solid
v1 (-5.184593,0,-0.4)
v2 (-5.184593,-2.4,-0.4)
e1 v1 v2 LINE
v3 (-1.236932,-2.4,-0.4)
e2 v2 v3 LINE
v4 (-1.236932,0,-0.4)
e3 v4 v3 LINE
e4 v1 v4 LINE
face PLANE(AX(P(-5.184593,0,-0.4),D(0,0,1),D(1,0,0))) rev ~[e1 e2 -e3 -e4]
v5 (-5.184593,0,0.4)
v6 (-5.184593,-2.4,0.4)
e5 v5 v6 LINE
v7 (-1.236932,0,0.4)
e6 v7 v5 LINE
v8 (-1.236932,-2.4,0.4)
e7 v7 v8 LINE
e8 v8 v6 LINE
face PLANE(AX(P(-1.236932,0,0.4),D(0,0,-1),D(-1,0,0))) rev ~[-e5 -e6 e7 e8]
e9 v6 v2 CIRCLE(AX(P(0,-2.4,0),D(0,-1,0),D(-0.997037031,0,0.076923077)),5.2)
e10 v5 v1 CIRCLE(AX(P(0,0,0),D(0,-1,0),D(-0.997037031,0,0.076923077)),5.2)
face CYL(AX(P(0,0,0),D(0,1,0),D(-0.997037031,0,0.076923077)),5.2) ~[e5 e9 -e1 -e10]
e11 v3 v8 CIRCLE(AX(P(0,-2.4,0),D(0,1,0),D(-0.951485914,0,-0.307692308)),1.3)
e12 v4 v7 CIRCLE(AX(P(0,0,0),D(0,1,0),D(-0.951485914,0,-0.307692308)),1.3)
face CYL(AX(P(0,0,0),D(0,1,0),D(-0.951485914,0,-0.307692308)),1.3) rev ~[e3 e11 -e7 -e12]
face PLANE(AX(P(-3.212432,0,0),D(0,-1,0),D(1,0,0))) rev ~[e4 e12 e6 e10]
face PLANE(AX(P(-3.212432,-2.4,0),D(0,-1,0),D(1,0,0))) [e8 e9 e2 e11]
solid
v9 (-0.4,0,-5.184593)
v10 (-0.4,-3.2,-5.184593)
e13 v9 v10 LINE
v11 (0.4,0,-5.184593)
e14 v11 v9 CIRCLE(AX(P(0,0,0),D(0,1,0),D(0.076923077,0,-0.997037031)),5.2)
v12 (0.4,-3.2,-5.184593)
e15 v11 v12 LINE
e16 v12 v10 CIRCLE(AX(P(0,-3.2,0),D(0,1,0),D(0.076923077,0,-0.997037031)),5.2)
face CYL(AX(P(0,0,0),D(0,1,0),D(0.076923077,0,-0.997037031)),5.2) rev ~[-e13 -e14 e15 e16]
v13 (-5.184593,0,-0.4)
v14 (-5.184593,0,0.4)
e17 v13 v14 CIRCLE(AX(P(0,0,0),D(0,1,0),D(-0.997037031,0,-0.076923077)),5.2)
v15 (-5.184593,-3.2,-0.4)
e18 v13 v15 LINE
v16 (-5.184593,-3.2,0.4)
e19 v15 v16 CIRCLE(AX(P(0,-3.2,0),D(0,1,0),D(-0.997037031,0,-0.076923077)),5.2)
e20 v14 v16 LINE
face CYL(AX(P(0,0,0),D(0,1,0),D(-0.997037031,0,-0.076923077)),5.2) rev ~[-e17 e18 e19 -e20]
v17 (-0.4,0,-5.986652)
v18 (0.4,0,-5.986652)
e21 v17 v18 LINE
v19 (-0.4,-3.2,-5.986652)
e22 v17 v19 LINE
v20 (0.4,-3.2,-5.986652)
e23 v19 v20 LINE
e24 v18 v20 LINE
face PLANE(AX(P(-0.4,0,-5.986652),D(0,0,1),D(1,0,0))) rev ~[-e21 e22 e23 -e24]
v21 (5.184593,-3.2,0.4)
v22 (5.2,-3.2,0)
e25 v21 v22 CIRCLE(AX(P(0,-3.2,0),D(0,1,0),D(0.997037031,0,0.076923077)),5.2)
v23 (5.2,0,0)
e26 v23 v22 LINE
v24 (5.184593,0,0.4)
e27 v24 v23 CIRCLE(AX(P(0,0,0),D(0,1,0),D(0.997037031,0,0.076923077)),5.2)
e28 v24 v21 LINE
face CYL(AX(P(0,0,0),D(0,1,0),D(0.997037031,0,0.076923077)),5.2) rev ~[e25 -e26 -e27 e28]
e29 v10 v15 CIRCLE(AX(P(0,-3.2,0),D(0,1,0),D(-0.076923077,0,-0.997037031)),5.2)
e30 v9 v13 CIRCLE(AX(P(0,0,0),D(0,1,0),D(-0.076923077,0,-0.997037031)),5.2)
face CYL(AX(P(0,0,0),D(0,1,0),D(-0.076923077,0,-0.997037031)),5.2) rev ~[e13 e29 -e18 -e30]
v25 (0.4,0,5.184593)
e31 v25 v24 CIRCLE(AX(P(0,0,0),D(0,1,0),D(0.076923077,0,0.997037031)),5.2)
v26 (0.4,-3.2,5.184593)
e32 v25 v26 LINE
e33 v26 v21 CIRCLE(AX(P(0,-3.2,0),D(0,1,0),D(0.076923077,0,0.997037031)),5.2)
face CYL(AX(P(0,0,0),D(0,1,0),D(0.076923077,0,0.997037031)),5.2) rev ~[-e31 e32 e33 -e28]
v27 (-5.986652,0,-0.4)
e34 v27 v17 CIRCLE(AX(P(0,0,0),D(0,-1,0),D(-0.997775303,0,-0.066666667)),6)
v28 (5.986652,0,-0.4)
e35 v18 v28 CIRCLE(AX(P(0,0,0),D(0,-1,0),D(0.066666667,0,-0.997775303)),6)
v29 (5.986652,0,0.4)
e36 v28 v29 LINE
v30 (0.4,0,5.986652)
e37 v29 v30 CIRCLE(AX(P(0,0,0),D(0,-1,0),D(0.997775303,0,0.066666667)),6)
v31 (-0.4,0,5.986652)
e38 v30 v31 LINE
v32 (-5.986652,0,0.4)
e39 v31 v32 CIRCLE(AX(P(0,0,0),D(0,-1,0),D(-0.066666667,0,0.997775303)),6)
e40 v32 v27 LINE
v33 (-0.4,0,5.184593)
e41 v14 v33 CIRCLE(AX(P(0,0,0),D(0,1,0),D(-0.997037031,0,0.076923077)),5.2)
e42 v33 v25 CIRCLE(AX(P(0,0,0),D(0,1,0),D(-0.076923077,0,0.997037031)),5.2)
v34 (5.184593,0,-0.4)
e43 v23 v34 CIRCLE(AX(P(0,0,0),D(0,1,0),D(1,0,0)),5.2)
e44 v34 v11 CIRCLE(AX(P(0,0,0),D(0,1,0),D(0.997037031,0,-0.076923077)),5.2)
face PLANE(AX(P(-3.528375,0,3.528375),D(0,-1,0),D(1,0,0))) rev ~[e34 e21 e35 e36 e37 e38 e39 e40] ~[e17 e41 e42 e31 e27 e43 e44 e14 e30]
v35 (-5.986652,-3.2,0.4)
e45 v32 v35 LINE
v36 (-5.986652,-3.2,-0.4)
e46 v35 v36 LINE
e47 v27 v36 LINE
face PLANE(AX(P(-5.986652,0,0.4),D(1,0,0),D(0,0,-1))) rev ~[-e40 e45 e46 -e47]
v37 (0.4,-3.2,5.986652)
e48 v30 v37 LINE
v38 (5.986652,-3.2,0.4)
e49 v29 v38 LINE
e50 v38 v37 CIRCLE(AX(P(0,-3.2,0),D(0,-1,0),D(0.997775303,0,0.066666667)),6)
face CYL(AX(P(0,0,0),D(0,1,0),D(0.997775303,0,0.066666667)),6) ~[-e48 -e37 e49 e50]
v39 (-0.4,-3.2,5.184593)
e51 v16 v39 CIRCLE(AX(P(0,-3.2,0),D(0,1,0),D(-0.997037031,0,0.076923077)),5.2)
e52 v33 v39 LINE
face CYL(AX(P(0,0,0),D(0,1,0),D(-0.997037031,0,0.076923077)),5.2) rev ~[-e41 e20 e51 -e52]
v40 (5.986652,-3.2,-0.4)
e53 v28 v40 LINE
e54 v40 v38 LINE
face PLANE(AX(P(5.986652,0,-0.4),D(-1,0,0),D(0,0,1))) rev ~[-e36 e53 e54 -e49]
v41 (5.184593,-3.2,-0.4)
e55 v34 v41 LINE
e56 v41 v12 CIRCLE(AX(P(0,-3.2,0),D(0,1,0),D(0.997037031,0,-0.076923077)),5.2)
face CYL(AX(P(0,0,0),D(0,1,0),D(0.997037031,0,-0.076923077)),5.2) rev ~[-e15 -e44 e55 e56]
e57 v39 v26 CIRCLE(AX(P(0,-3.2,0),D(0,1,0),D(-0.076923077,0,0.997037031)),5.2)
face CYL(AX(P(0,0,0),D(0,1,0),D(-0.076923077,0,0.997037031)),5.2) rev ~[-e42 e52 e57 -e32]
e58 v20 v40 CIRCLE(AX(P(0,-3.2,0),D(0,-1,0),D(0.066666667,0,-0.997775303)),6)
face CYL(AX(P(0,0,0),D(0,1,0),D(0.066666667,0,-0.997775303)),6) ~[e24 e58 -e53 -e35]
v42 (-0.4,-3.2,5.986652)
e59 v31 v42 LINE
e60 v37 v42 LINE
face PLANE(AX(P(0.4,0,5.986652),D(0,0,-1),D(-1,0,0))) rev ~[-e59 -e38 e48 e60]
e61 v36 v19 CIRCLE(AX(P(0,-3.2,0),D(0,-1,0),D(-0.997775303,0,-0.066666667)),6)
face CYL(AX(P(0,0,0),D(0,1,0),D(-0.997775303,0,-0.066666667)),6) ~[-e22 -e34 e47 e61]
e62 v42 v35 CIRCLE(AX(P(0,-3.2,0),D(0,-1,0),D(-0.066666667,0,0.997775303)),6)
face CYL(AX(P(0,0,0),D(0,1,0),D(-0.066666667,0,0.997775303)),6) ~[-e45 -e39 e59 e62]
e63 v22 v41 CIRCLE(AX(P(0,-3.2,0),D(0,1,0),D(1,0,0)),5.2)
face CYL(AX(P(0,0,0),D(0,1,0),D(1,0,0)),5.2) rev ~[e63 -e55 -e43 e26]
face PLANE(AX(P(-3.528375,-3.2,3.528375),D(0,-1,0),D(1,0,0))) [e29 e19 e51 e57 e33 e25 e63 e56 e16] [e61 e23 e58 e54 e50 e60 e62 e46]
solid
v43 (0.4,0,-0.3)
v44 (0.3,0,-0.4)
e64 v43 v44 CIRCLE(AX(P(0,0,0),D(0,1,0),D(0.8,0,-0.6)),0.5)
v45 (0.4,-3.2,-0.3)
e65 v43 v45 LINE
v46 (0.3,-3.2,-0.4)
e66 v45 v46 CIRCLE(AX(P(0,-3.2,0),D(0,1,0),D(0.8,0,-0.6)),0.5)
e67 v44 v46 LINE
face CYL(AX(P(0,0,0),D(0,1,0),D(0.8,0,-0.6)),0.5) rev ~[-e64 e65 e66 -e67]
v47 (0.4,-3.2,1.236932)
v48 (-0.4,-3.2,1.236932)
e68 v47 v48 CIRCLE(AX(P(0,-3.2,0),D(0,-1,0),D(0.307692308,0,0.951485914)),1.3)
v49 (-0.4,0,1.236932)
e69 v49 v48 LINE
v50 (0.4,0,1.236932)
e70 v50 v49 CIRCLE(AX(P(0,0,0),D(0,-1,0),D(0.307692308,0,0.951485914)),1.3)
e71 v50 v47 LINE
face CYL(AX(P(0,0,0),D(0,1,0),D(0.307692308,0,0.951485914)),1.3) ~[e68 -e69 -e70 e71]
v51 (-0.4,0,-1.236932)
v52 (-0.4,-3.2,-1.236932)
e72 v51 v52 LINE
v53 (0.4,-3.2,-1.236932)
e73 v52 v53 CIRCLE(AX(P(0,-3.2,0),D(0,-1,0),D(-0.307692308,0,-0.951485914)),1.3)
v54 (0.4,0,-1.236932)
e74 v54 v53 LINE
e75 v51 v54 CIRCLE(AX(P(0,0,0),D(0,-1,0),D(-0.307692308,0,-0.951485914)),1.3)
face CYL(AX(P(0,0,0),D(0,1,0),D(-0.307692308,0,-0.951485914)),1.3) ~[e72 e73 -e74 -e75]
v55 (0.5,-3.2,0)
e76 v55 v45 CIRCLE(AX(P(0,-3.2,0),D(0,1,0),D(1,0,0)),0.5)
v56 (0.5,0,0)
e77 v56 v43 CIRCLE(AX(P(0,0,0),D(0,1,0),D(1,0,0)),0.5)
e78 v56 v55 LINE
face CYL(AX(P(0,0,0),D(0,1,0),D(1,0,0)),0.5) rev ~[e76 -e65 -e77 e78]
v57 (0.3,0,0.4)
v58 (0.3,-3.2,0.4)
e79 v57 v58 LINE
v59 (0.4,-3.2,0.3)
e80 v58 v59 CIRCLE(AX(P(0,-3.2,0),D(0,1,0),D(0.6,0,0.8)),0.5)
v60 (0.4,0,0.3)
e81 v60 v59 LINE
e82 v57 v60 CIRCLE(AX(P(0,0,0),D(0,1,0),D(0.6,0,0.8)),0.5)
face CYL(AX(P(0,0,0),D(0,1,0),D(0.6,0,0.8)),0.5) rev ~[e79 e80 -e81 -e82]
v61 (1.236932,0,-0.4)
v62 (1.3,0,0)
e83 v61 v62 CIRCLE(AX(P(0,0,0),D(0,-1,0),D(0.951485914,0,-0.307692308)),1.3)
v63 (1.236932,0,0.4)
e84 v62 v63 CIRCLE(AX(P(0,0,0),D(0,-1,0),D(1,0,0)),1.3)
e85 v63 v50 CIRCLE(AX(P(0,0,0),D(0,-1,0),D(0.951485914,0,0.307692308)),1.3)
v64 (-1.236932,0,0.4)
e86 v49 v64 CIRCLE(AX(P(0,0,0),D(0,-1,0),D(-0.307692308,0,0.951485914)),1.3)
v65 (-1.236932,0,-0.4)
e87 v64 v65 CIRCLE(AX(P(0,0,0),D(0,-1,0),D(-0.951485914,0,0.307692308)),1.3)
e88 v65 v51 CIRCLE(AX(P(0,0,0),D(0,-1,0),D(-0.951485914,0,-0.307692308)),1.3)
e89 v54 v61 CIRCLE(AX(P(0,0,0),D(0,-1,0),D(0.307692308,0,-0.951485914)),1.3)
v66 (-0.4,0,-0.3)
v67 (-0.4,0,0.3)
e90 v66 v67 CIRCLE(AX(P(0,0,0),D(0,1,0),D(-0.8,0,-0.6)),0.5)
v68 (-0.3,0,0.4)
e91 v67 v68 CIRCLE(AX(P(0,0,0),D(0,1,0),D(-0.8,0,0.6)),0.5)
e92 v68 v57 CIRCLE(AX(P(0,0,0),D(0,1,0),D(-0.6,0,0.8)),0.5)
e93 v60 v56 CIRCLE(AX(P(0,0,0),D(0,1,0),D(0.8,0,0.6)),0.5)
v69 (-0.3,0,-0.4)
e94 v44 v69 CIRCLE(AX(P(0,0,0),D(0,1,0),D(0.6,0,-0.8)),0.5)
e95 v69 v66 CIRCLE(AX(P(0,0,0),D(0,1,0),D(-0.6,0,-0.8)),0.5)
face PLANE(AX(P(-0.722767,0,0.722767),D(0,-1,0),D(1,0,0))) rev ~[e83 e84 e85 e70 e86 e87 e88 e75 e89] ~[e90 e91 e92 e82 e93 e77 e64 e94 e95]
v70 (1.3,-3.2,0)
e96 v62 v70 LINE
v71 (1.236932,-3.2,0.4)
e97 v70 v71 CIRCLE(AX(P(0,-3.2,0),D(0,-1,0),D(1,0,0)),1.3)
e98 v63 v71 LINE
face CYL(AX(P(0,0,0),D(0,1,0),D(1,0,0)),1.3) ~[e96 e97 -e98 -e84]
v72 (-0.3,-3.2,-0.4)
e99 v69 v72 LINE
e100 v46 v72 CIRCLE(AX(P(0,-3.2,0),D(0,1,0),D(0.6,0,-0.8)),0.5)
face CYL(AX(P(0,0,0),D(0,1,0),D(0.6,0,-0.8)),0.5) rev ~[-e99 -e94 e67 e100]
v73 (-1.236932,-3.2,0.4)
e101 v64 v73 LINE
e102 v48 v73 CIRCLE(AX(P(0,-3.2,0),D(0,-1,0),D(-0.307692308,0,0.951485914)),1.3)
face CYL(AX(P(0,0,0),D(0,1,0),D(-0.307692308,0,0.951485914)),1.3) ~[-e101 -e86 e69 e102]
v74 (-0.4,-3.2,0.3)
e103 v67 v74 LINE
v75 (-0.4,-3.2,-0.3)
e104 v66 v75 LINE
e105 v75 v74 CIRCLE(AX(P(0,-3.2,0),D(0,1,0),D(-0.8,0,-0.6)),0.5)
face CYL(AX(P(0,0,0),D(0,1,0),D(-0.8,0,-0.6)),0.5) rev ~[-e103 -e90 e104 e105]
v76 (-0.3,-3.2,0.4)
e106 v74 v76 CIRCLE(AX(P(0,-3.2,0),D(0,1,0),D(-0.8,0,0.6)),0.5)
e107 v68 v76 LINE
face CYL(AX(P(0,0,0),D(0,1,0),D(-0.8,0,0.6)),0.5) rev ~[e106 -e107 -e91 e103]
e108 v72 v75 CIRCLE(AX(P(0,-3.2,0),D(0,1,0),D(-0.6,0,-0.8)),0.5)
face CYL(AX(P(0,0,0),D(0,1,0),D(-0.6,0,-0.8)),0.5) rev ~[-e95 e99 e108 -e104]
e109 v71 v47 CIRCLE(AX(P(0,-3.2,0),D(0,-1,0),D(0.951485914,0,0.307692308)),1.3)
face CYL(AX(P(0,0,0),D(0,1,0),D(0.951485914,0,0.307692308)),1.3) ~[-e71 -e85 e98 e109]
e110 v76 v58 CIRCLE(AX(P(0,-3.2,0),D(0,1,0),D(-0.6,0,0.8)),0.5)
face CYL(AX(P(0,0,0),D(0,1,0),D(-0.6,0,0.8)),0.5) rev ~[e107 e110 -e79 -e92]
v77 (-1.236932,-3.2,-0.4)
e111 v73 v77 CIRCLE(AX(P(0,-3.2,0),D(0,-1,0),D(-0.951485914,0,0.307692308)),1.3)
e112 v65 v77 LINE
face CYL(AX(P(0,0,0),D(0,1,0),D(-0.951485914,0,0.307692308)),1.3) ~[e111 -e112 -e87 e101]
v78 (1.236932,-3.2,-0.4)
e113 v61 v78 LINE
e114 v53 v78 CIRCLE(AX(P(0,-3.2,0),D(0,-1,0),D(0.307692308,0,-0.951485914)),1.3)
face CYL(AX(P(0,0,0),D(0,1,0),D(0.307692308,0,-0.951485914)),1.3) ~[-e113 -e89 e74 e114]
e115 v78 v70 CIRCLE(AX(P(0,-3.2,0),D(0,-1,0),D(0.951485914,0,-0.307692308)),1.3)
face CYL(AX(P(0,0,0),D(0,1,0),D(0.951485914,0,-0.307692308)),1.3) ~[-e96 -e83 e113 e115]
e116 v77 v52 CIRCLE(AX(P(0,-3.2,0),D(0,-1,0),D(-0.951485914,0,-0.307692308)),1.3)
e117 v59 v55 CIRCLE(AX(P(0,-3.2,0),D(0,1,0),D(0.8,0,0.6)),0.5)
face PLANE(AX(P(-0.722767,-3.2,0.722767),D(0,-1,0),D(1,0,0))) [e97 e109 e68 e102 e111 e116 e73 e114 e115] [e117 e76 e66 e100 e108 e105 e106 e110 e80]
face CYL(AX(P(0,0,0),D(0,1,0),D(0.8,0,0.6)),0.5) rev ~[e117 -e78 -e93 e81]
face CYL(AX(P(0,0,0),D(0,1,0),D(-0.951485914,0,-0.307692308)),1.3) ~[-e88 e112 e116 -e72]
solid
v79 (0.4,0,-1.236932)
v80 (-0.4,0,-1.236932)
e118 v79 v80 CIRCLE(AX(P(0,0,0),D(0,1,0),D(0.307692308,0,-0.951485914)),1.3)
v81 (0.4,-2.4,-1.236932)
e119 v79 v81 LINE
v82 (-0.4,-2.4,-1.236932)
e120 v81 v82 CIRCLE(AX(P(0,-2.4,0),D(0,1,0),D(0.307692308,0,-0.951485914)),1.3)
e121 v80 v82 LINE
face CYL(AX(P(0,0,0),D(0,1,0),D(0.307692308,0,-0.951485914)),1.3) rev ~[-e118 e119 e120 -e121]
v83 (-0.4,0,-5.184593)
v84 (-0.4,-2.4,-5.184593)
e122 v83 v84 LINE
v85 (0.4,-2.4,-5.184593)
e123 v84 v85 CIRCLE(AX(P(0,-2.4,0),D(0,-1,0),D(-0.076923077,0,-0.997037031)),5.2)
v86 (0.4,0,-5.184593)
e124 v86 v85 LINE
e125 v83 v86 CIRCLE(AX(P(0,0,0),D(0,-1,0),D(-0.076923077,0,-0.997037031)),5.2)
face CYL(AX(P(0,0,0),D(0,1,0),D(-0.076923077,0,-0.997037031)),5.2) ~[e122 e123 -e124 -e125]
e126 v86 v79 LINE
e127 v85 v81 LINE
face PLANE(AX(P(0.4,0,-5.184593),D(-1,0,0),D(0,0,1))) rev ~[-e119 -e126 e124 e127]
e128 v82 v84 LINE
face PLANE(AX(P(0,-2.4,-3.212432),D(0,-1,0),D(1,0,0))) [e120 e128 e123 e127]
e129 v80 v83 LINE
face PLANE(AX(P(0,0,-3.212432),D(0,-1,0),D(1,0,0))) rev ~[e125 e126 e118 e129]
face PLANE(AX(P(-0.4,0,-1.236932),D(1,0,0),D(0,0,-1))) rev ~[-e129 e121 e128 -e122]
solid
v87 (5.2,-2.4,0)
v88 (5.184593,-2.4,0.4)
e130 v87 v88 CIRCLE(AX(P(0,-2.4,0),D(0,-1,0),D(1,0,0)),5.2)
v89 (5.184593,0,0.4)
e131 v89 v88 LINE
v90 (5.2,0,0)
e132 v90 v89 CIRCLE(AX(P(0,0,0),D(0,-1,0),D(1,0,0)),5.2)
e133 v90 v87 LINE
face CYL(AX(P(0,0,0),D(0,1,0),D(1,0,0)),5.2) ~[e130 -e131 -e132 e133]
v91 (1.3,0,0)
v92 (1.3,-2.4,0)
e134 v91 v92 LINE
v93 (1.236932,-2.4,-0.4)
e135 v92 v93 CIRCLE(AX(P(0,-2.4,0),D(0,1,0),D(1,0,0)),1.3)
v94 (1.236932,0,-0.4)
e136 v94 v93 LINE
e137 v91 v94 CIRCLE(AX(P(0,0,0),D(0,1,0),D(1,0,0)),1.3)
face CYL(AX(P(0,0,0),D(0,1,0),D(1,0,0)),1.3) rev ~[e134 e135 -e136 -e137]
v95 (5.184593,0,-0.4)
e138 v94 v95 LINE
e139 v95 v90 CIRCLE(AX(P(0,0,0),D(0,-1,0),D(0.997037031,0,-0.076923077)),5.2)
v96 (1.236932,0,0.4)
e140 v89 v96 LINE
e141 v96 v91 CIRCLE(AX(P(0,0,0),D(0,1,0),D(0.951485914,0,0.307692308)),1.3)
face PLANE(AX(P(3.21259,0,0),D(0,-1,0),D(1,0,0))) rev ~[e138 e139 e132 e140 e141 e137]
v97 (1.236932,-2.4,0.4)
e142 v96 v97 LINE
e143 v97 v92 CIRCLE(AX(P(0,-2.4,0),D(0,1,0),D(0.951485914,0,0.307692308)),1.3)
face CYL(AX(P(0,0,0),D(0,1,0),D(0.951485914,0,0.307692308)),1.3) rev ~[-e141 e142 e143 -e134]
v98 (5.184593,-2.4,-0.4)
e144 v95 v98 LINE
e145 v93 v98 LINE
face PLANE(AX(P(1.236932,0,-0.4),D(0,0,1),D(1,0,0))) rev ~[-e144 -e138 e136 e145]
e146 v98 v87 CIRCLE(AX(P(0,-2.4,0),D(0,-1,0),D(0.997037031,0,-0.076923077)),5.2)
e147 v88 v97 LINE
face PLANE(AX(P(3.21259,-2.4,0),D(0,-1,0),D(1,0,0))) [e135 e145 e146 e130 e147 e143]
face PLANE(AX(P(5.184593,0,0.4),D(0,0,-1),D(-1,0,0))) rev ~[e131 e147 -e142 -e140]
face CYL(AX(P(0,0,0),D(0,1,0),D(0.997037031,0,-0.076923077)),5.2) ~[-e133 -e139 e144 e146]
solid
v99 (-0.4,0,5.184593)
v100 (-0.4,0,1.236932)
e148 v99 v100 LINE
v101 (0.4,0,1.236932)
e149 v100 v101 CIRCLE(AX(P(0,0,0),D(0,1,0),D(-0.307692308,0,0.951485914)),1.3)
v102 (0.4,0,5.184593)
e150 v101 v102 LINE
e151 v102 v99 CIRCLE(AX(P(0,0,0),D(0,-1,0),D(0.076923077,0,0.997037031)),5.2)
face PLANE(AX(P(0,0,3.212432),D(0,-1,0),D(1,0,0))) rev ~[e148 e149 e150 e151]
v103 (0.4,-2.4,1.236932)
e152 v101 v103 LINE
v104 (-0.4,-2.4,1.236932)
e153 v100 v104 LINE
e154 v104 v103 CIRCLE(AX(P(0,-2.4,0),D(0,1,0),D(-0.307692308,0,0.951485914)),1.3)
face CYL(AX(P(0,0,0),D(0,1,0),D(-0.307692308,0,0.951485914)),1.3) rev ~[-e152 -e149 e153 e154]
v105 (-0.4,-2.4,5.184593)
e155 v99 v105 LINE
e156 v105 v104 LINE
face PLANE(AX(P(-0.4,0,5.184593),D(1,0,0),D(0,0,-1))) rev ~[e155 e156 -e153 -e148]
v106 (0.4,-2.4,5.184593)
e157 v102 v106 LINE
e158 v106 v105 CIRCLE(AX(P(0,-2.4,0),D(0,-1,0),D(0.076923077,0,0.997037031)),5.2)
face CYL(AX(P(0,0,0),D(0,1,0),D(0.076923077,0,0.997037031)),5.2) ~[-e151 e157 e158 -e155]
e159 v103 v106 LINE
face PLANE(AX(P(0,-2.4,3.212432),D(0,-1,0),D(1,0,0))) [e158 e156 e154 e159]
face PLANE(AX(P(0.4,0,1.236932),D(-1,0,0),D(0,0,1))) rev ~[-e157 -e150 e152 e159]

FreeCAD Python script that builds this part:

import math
import FreeCAD as App
import Part
import Sketcher
from FreeCAD import Vector
Q = App.Units.Quantity

doc = App.newDocument("Part")
body = doc.addObject("PartDesign::Body", "Body")

sketch1 = body.newObject("Sketcher::SketchObject", "Sketch")
sketch1.AttachmentSupport = (doc.getObject("XZ_Plane"), [""])
sketch1.MapMode = "FlatFace"
sketch1.addGeometry(Part.ArcOfCircle(Part.Circle(Vector(0, 0, 0), Vector(0, 0, 1), 6), math.radians(94), math.radians(176)), False)
sketch1.addGeometry(Part.LineSegment(Vector(-5.99, 0.4, 0), Vector(-5.99, -0.4, 0)), False)
sketch1.addGeometry(Part.ArcOfCircle(Part.Circle(Vector(0, 0, 0), Vector(0, 0, 1), 6), math.radians(-176), math.radians(-94)), False)
sketch1.addGeometry(Part.LineSegment(Vector(-0.4, -5.99, 0), Vector(0.4, -5.99, 0)), False)
sketch1.addGeometry(Part.ArcOfCircle(Part.Circle(Vector(0, 0, 0), Vector(0, 0, 1), 6), math.radians(-86), math.radians(-4)), False)
sketch1.addGeometry(Part.LineSegment(Vector(5.99, -0.4, 0), Vector(5.99, 0.4, 0)), False)
sketch1.addGeometry(Part.ArcOfCircle(Part.Circle(Vector(0, 0, 0), Vector(0, 0, 1), 6), math.radians(4), math.radians(86)), False)
sketch1.addGeometry(Part.LineSegment(Vector(0.4, 5.99, 0), Vector(-0.4, 5.99, 0)), False)
sketch1.addGeometry(Part.ArcOfCircle(Part.Circle(Vector(0, 0, 0), Vector(0, 0, 1), 5.2), math.radians(94), math.radians(176)), False)
sketch1.addGeometry(Part.ArcOfCircle(Part.Circle(Vector(0, 0, 0), Vector(0, 0, 1), 5.2), math.radians(85.59), math.radians(94.41)), False)
sketch1.addGeometry(Part.ArcOfCircle(Part.Circle(Vector(0, 0, 0), Vector(0, 0, 1), 5.2), math.radians(4), math.radians(86)), False)
sketch1.addGeometry(Part.ArcOfCircle(Part.Circle(Vector(0, 0, 0), Vector(0, 0, 1), 5.2), math.radians(0), math.radians(4.41)), False)
sketch1.addGeometry(Part.ArcOfCircle(Part.Circle(Vector(0, 0, 0), Vector(0, 0, 1), 5.2), math.radians(-4.41), math.radians(0)), False)
sketch1.addGeometry(Part.ArcOfCircle(Part.Circle(Vector(0, 0, 0), Vector(0, 0, 1), 5.2), math.radians(-86), math.radians(-4)), False)
sketch1.addGeometry(Part.ArcOfCircle(Part.Circle(Vector(0, 0, 0), Vector(0, 0, 1), 5.2), math.radians(-94.41), math.radians(-85.59)), False)
sketch1.addGeometry(Part.ArcOfCircle(Part.Circle(Vector(0, 0, 0), Vector(0, 0, 1), 5.2), math.radians(-176), math.radians(-94)), False)
sketch1.addGeometry(Part.ArcOfCircle(Part.Circle(Vector(0, 0, 0), Vector(0, 0, 1), 5.2), math.radians(175.59), math.radians(184.41)), False)
sketch1.addConstraint(Sketcher.Constraint("Coincident", 0, 2, 1, 1))
sketch1.addConstraint(Sketcher.Constraint("Coincident", 1, 2, 2, 1))
sketch1.addConstraint(Sketcher.Constraint("Coincident", 2, 2, 3, 1))
sketch1.addConstraint(Sketcher.Constraint("Coincident", 3, 2, 4, 1))
sketch1.addConstraint(Sketcher.Constraint("Coincident", 4, 2, 5, 1))
sketch1.addConstraint(Sketcher.Constraint("Coincident", 5, 2, 6, 1))
sketch1.addConstraint(Sketcher.Constraint("Coincident", 6, 2, 7, 1))
sketch1.addConstraint(Sketcher.Constraint("Coincident", 7, 2, 0, 1))
sketch1.addConstraint(Sketcher.Constraint("Tangent", 8, 1, 9, 2))
sketch1.addConstraint(Sketcher.Constraint("Tangent", 9, 1, 10, 2))
sketch1.addConstraint(Sketcher.Constraint("Tangent", 10, 1, 11, 2))
sketch1.addConstraint(Sketcher.Constraint("Tangent", 11, 1, 12, 2))
sketch1.addConstraint(Sketcher.Constraint("Tangent", 12, 1, 13, 2))
sketch1.addConstraint(Sketcher.Constraint("Tangent", 13, 1, 14, 2))
sketch1.addConstraint(Sketcher.Constraint("Tangent", 14, 1, 15, 2))
sketch1.addConstraint(Sketcher.Constraint("Tangent", 15, 1, 16, 2))
sketch1.addConstraint(Sketcher.Constraint("Tangent", 16, 1, 8, 2))
sketch1.addConstraint(Sketcher.Constraint("Vertical", 1))
sketch1.addConstraint(Sketcher.Constraint("Horizontal", 3))
sketch1.addConstraint(Sketcher.Constraint("Vertical", 5))
sketch1.addConstraint(Sketcher.Constraint("Horizontal", 7))
sketch1.addConstraint(Sketcher.Constraint("Coincident", 0, 3, -1, 1))
sketch1.addConstraint(Sketcher.Constraint("Coincident", 2, 3, -1, 1))
sketch1.addConstraint(Sketcher.Constraint("Coincident", 4, 3, -1, 1))
sketch1.addConstraint(Sketcher.Constraint("Coincident", 6, 3, -1, 1))
sketch1.addConstraint(Sketcher.Constraint("Coincident", 8, 3, -1, 1))
sketch1.addConstraint(Sketcher.Constraint("Coincident", 10, 3, -1, 1))
sketch1.addConstraint(Sketcher.Constraint("Coincident", 12, 3, -1, 1))
sketch1.addConstraint(Sketcher.Constraint("Coincident", 14, 3, -1, 1))
sketch1.addConstraint(Sketcher.Constraint("Equal", 0, 2))
sketch1.addConstraint(Sketcher.Constraint("Equal", 2, 4))
sketch1.addConstraint(Sketcher.Constraint("Equal", 4, 6))
sketch1.addConstraint(Sketcher.Constraint("PointOnObject", 11, 1, -1))
sketch1.addConstraint(Sketcher.Constraint("Horizontal", 1, 2, 4, 2))
sketch1.addConstraint(Sketcher.Constraint("Horizontal", 8, 1, 9, 1))
sketch1.addConstraint(Sketcher.Constraint("Horizontal", 5, 2, 10, 1))
sketch1.addConstraint(Sketcher.Constraint("Horizontal", 4, 2, 12, 1))
sketch1.addConstraint(Sketcher.Constraint("Horizontal", 13, 1, 14, 1))
sketch1.addConstraint(Sketcher.Constraint("Horizontal", 12, 1, 15, 1))
sketch1.addConstraint(Sketcher.Constraint("Horizontal", 10, 1, 16, 1))
sketch1.addConstraint(Sketcher.Constraint("Vertical", 3, 2, 6, 2))
sketch1.addConstraint(Sketcher.Constraint("Vertical", 7, 2, 8, 1))
sketch1.addConstraint(Sketcher.Constraint("Vertical", 9, 1, 13, 1))
sketch1.addConstraint(Sketcher.Constraint("Equal", 7, 1))
sketch1.addConstraint(Sketcher.Constraint("Radius", 0, Q("6 mm")))
sketch1.addConstraint(Sketcher.Constraint("Radius", 8, Q("5.2 mm")))
sketch1.addConstraint(Sketcher.Constraint("DistanceX", 3, 1, 3, 2, Q("0.8 mm")))
pad1 = body.newObject("PartDesign::Pad", "Pad")
pad1.Profile = sketch1
pad1.Length = 3.2
body2 = doc.addObject("PartDesign::Body", "Body001")

sketch2 = body2.newObject("Sketcher::SketchObject", "Sketch001")
sketch2.AttachmentSupport = (doc.getObject("XZ_Plane001"), [""])
sketch2.MapMode = "FlatFace"
sketch2.addGeometry(Part.ArcOfCircle(Part.Circle(Vector(0, 0, 0), Vector(0, 0, 1), 1.3), math.radians(108), math.radians(162)), False)
sketch2.addGeometry(Part.ArcOfCircle(Part.Circle(Vector(0, 0, 0), Vector(0, 0, 1), 1.3), math.radians(162), math.radians(198)), False)
sketch2.addGeometry(Part.ArcOfCircle(Part.Circle(Vector(0, 0, 0), Vector(0, 0, 1), 1.3), math.radians(-162), math.radians(-108)), False)
sketch2.addGeometry(Part.ArcOfCircle(Part.Circle(Vector(0, 0, 0), Vector(0, 0, 1), 1.3), math.radians(-108), math.radians(-72)), False)
sketch2.addGeometry(Part.ArcOfCircle(Part.Circle(Vector(0, 0, 0), Vector(0, 0, 1), 1.3), math.radians(-72), math.radians(-18)), False)
sketch2.addGeometry(Part.ArcOfCircle(Part.Circle(Vector(0, 0, 0), Vector(0, 0, 1), 1.3), math.radians(-17.92), math.radians(0)), False)
sketch2.addGeometry(Part.ArcOfCircle(Part.Circle(Vector(0, 0, 0), Vector(0, 0, 1), 1.3), math.radians(0), math.radians(17.92)), False)
sketch2.addGeometry(Part.ArcOfCircle(Part.Circle(Vector(0, 0, 0), Vector(0, 0, 1), 1.3), math.radians(18), math.radians(72)), False)
sketch2.addGeometry(Part.ArcOfCircle(Part.Circle(Vector(0, 0, 0), Vector(0, 0, 1), 1.3), math.radians(72), math.radians(108)), False)
sketch2.addGeometry(Part.ArcOfCircle(Part.Circle(Vector(0, 0, 0), Vector(0, 0, 1), 0.5), math.radians(53), math.radians(127)), False)
sketch2.addGeometry(Part.ArcOfCircle(Part.Circle(Vector(0, 0, 0), Vector(0, 0, 1), 0.5), math.radians(36.87), math.radians(53.13)), False)
sketch2.addGeometry(Part.ArcOfCircle(Part.Circle(Vector(0, 0, 0), Vector(0, 0, 1), 0.5), math.radians(0), math.radians(37)), False)
sketch2.addGeometry(Part.ArcOfCircle(Part.Circle(Vector(0, 0, 0), Vector(0, 0, 1), 0.5), math.radians(-37), math.radians(0)), False)
sketch2.addGeometry(Part.ArcOfCircle(Part.Circle(Vector(0, 0, 0), Vector(0, 0, 1), 0.5), math.radians(-53.13), math.radians(-36.87)), False)
sketch2.addGeometry(Part.ArcOfCircle(Part.Circle(Vector(0, 0, 0), Vector(0, 0, 1), 0.5), math.radians(-127), math.radians(-53)), False)
sketch2.addGeometry(Part.ArcOfCircle(Part.Circle(Vector(0, 0, 0), Vector(0, 0, 1), 0.5), math.radians(-143.13), math.radians(-126.87)), False)
sketch2.addGeometry(Part.ArcOfCircle(Part.Circle(Vector(0, 0, 0), Vector(0, 0, 1), 0.5), math.radians(143), math.radians(217)), False)
sketch2.addGeometry(Part.ArcOfCircle(Part.Circle(Vector(0, 0, 0), Vector(0, 0, 1), 0.5), math.radians(126.87), math.radians(143.13)), False)
sketch2.addConstraint(Sketcher.Constraint("Tangent", 0, 2, 1, 1))
sketch2.addConstraint(Sketcher.Constraint("Tangent", 1, 2, 2, 1))
sketch2.addConstraint(Sketcher.Constraint("Tangent", 2, 2, 3, 1))
sketch2.addConstraint(Sketcher.Constraint("Tangent", 3, 2, 4, 1))
sketch2.addConstraint(Sketcher.Constraint("Tangent", 4, 2, 5, 1))
sketch2.addConstraint(Sketcher.Constraint("Tangent", 5, 2, 6, 1))
sketch2.addConstraint(Sketcher.Constraint("Tangent", 6, 2, 7, 1))
sketch2.addConstraint(Sketcher.Constraint("Tangent", 7, 2, 8, 1))
sketch2.addConstraint(Sketcher.Constraint("Tangent", 8, 2, 0, 1))
sketch2.addConstraint(Sketcher.Constraint("Tangent", 9, 1, 10, 2))
sketch2.addConstraint(Sketcher.Constraint("Tangent", 10, 1, 11, 2))
sketch2.addConstraint(Sketcher.Constraint("Tangent", 11, 1, 12, 2))
sketch2.addConstraint(Sketcher.Constraint("Tangent", 12, 1, 13, 2))
sketch2.addConstraint(Sketcher.Constraint("Tangent", 13, 1, 14, 2))
sketch2.addConstraint(Sketcher.Constraint("Tangent", 14, 1, 15, 2))
sketch2.addConstraint(Sketcher.Constraint("Tangent", 15, 1, 16, 2))
sketch2.addConstraint(Sketcher.Constraint("Tangent", 16, 1, 17, 2))
sketch2.addConstraint(Sketcher.Constraint("Tangent", 17, 1, 9, 2))
sketch2.addConstraint(Sketcher.Constraint("Coincident", 0, 3, -1, 1))
sketch2.addConstraint(Sketcher.Constraint("Coincident", 2, 3, -1, 1))
sketch2.addConstraint(Sketcher.Constraint("Coincident", 4, 3, -1, 1))
sketch2.addConstraint(Sketcher.Constraint("Coincident", 6, 3, -1, 1))
sketch2.addConstraint(Sketcher.Constraint("Coincident", 9, 3, -1, 1))
sketch2.addConstraint(Sketcher.Constraint("Coincident", 11, 3, -1, 1))
sketch2.addConstraint(Sketcher.Constraint("Coincident", 13, 3, -1, 1))
sketch2.addConstraint(Sketcher.Constraint("Coincident", 15, 3, -1, 1))
sketch2.addConstraint(Sketcher.Constraint("PointOnObject", 5, 2, -1))
sketch2.addConstraint(Sketcher.Constraint("PointOnObject", 11, 1, -1))
sketch2.addConstraint(Sketcher.Constraint("Horizontal", 2, 2, 3, 2))
sketch2.addConstraint(Sketcher.Constraint("Horizontal", 1, 2, 4, 2))
sketch2.addConstraint(Sketcher.Constraint("Horizontal", 0, 2, 6, 2))
sketch2.addConstraint(Sketcher.Constraint("Horizontal", 7, 2, 8, 2))
sketch2.addConstraint(Sketcher.Constraint("Horizontal", 6, 2, 9, 1))
sketch2.addConstraint(Sketcher.Constraint("Horizontal", 4, 2, 13, 1))
sketch2.addConstraint(Sketcher.Constraint("Horizontal", 13, 1, 14, 1))
sketch2.addConstraint(Sketcher.Constraint("Horizontal", 12, 1, 15, 1))
sketch2.addConstraint(Sketcher.Constraint("Horizontal", 10, 1, 16, 1))
sketch2.addConstraint(Sketcher.Constraint("Horizontal", 9, 1, 17, 1))
sketch2.addConstraint(Sketcher.Constraint("Vertical", 0, 2, 1, 2))
sketch2.addConstraint(Sketcher.Constraint("Vertical", 3, 2, 7, 2))
sketch2.addConstraint(Sketcher.Constraint("Vertical", 7, 2, 10, 1))
sketch2.addConstraint(Sketcher.Constraint("Vertical", 10, 1, 12, 1))
sketch2.addConstraint(Sketcher.Constraint("Radius", 0, Q("1.3 mm")))
sketch2.addConstraint(Sketcher.Constraint("Radius", 9, Q("0.5 mm")))
sketch2.addConstraint(Sketcher.Constraint("DistanceY", -1, 1, 0, 2, Q("0.4 mm")))
sketch2.addConstraint(Sketcher.Constraint("DistanceX", 2, 2, -1, 1, Q("0.4 mm")))
pad2 = body2.newObject("PartDesign::Pad", "Pad001")
pad2.Profile = sketch2
pad2.Length = 3.2
body3 = doc.addObject("PartDesign::Body", "Body002")

sketch3 = body3.newObject("Sketcher::SketchObject", "Sketch002")
sketch3.AttachmentSupport = (doc.getObject("XZ_Plane002"), [""])
sketch3.MapMode = "FlatFace"
sketch3.addGeometry(Part.LineSegment(Vector(-1.2, 0.4, 0), Vector(-5.2, 0.4, 0)), False)
sketch3.addGeometry(Part.ArcOfCircle(Part.Circle(Vector(0, 0, 0), Vector(0, 0, 1), 5.2), math.radians(175.59), math.radians(184.41)), False)
sketch3.addGeometry(Part.LineSegment(Vector(-5.2, -0.4, 0), Vector(-1.2, -0.4, 0)), False)
sketch3.addGeometry(Part.ArcOfCircle(Part.Circle(Vector(0, 0, 0), Vector(0, 0, 1), 1.3), math.radians(162), math.radians(198)), False)
sketch3.addConstraint(Sketcher.Constraint("Coincident", 0, 2, 1, 1))
sketch3.addConstraint(Sketcher.Constraint("Coincident", 1, 2, 2, 1))
sketch3.addConstraint(Sketcher.Constraint("Coincident", 2, 2, 3, 2))
sketch3.addConstraint(Sketcher.Constraint("Coincident", 3, 1, 0, 1))
sketch3.addConstraint(Sketcher.Constraint("Horizontal", 0))
sketch3.addConstraint(Sketcher.Constraint("Horizontal", 2))
sketch3.addConstraint(Sketcher.Constraint("Coincident", 1, 3, -1, 1))
sketch3.addConstraint(Sketcher.Constraint("Coincident", 3, 3, -1, 1))
sketch3.addConstraint(Sketcher.Constraint("Vertical", 0, 2, 1, 2))
sketch3.addConstraint(Sketcher.Constraint("Radius", 1, Q("5.2 mm")))
sketch3.addConstraint(Sketcher.Constraint("Radius", 3, Q("1.3 mm")))
sketch3.addConstraint(Sketcher.Constraint("DistanceY", -1, 1, 0, 2, Q("0.4 mm")))
pad3 = body3.newObject("PartDesign::Pad", "Pad002")
pad3.Profile = sketch3
pad3.Length = 2.4
body4 = doc.addObject("PartDesign::Body", "Body003")

sketch4 = body4.newObject("Sketcher::SketchObject", "Sketch003")
sketch4.AttachmentSupport = (doc.getObject("XZ_Plane003"), [""])
sketch4.MapMode = "FlatFace"
sketch4.addGeometry(Part.LineSegment(Vector(0.4, 1.2, 0), Vector(0.4, 5.2, 0)), False)
sketch4.addGeometry(Part.ArcOfCircle(Part.Circle(Vector(0, 0, 0), Vector(0, 0, 1), 5.2), math.radians(85.59), math.radians(94.41)), False)
sketch4.addGeometry(Part.LineSegment(Vector(-0.4, 5.2, 0), Vector(-0.4, 1.2, 0)), False)
sketch4.addGeometry(Part.ArcOfCircle(Part.Circle(Vector(0, 0, 0), Vector(0, 0, 1), 1.3), math.radians(72), math.radians(108)), False)
sketch4.addConstraint(Sketcher.Constraint("Coincident", 0, 2, 1, 1))
sketch4.addConstraint(Sketcher.Constraint("Coincident", 1, 2, 2, 1))
sketch4.addConstraint(Sketcher.Constraint("Coincident", 2, 2, 3, 2))
sketch4.addConstraint(Sketcher.Constraint("Coincident", 3, 1, 0, 1))
sketch4.addConstraint(Sketcher.Constraint("Vertical", 0))
sketch4.addConstraint(Sketcher.Constraint("Vertical", 2))
sketch4.addConstraint(Sketcher.Constraint("Coincident", 1, 3, -1, 1))
sketch4.addConstraint(Sketcher.Constraint("Coincident", 3, 3, -1, 1))
sketch4.addConstraint(Sketcher.Constraint("Horizontal", 0, 2, 1, 2))
sketch4.addConstraint(Sketcher.Constraint("Radius", 1, Q("5.2 mm")))
sketch4.addConstraint(Sketcher.Constraint("Radius", 3, Q("1.3 mm")))
sketch4.addConstraint(Sketcher.Constraint("DistanceX", -1, 1, 0, 2, Q("0.4 mm")))
pad4 = body4.newObject("PartDesign::Pad", "Pad003")
pad4.Profile = sketch4
pad4.Length = 2.4
body5 = doc.addObject("PartDesign::Body", "Body004")

sketch5 = body5.newObject("Sketcher::SketchObject", "Sketch004")
sketch5.AttachmentSupport = (doc.getObject("XZ_Plane004"), [""])
sketch5.MapMode = "FlatFace"
sketch5.addGeometry(Part.ArcOfCircle(Part.Circle(Vector(0, 0, 0), Vector(0, 0, 1), 5.2), math.radians(0), math.radians(4.41)), False)
sketch5.addGeometry(Part.LineSegment(Vector(5.18, 0.4, 0), Vector(1.24, 0.4, 0)), False)
sketch5.addGeometry(Part.ArcOfCircle(Part.Circle(Vector(0, 0, 0), Vector(0, 0, 1), 1.3), math.radians(0), math.radians(17.92)), False)
sketch5.addGeometry(Part.ArcOfCircle(Part.Circle(Vector(0, 0, 0), Vector(0, 0, 1), 1.3), math.radians(-17.92), math.radians(0)), False)
sketch5.addGeometry(Part.LineSegment(Vector(1.24, -0.4, 0), Vector(5.18, -0.4, 0)), False)
sketch5.addGeometry(Part.ArcOfCircle(Part.Circle(Vector(0, 0, 0), Vector(0, 0, 1), 5.2), math.radians(-4.41), math.radians(0)), False)
sketch5.addConstraint(Sketcher.Constraint("Coincident", 0, 2, 1, 1))
sketch5.addConstraint(Sketcher.Constraint("Coincident", 1, 2, 2, 2))
sketch5.addConstraint(Sketcher.Constraint("Tangent", 2, 1, 3, 2))
sketch5.addConstraint(Sketcher.Constraint("Coincident", 3, 1, 4, 1))
sketch5.addConstraint(Sketcher.Constraint("Coincident", 4, 2, 5, 1))
sketch5.addConstraint(Sketcher.Constraint("Tangent", 5, 2, 0, 1))
sketch5.addConstraint(Sketcher.Constraint("Horizontal", 1))
sketch5.addConstraint(Sketcher.Constraint("Horizontal", 4))
sketch5.addConstraint(Sketcher.Constraint("Coincident", 0, 3, -1, 1))
sketch5.addConstraint(Sketcher.Constraint("Coincident", 2, 3, -1, 1))
sketch5.addConstraint(Sketcher.Constraint("Equal", 2, 3))
sketch5.addConstraint(Sketcher.Constraint("Equal", 0, 5))
sketch5.addConstraint(Sketcher.Constraint("PointOnObject", 2, 1, -1))
sketch5.addConstraint(Sketcher.Constraint("PointOnObject", 5, 2, -1))
sketch5.addConstraint(Sketcher.Constraint("Vertical", 1, 2, 3, 1))
sketch5.addConstraint(Sketcher.Constraint("Radius", 0, Q("5.2 mm")))
sketch5.addConstraint(Sketcher.Constraint("Radius", 2, Q("1.3 mm")))
sketch5.addConstraint(Sketcher.Constraint("DistanceY", -1, 1, 0, 2, Q("0.4 mm")))
pad5 = body5.newObject("PartDesign::Pad", "Pad004")
pad5.Profile = sketch5
pad5.Length = 2.4
body6 = doc.addObject("PartDesign::Body", "Body005")

sketch6 = body6.newObject("Sketcher::SketchObject", "Sketch005")
sketch6.AttachmentSupport = (doc.getObject("XZ_Plane005"), [""])
sketch6.MapMode = "FlatFace"
sketch6.addGeometry(Part.ArcOfCircle(Part.Circle(Vector(0, 0, 0), Vector(0, 0, 1), 5.2), math.radians(-94.41), math.radians(-85.59)), False)
sketch6.addGeometry(Part.LineSegment(Vector(0.4, -5.2, 0), Vector(0.4, -1.2, 0)), False)
sketch6.addGeometry(Part.ArcOfCircle(Part.Circle(Vector(0, 0, 0), Vector(0, 0, 1), 1.3), math.radians(-108), math.radians(-72)), False)
sketch6.addGeometry(Part.LineSegment(Vector(-0.4, -1.2, 0), Vector(-0.4, -5.2, 0)), False)
sketch6.addConstraint(Sketcher.Constraint("Coincident", 0, 2, 1, 1))
sketch6.addConstraint(Sketcher.Constraint("Coincident", 1, 2, 2, 2))
sketch6.addConstraint(Sketcher.Constraint("Coincident", 2, 1, 3, 1))
sketch6.addConstraint(Sketcher.Constraint("Coincident", 3, 2, 0, 1))
sketch6.addConstraint(Sketcher.Constraint("Vertical", 1))
sketch6.addConstraint(Sketcher.Constraint("Vertical", 3))
sketch6.addConstraint(Sketcher.Constraint("Coincident", 0, 3, -1, 1))
sketch6.addConstraint(Sketcher.Constraint("Coincident", 2, 3, -1, 1))
sketch6.addConstraint(Sketcher.Constraint("Horizontal", 1, 2, 2, 1))
sketch6.addConstraint(Sketcher.Constraint("Radius", 0, Q("5.2 mm")))
sketch6.addConstraint(Sketcher.Constraint("Radius", 2, Q("1.3 mm")))
sketch6.addConstraint(Sketcher.Constraint("DistanceX", -1, 1, 0, 2, Q("0.4 mm")))
pad6 = body6.newObject("PartDesign::Pad", "Pad005")
pad6.Profile = sketch6
pad6.Length = 2.4

doc.recompute()
